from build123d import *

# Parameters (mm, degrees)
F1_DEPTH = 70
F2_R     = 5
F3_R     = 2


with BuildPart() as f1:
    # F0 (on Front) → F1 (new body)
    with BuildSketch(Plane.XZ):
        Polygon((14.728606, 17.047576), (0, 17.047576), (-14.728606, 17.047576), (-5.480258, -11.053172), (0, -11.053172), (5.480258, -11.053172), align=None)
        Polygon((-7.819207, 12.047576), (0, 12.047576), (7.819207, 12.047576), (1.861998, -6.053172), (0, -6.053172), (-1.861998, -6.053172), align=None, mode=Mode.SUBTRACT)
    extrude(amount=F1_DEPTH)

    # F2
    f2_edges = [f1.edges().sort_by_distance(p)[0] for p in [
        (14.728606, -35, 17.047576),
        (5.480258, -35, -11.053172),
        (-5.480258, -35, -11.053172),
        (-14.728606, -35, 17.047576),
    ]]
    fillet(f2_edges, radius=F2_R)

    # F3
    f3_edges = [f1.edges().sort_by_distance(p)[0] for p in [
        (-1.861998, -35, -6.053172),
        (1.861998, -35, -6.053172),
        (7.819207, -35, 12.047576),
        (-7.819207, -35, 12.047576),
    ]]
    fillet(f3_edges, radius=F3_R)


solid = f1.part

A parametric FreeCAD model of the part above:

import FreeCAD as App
import Part
import Sketcher
from FreeCAD import Vector


def edges_at(feature, points):
    """Names of the edges that pass closest to the given points."""
    edges = feature.Shape.Edges
    near = lambda p: min(range(len(edges)), key=lambda i: edges[i].distToShape(Part.Vertex(*p))[0])
    return sorted({f"Edge{near(p) + 1}" for p in points})

doc = App.newDocument("Part")
body = doc.addObject("PartDesign::Body", "Body")

sketch1 = body.newObject("Sketcher::SketchObject", "Sketch")
sketch1.AttachmentSupport = (doc.getObject("XZ_Plane"), [""])
sketch1.MapMode = "FlatFace"
sketch1.addGeometry(Part.LineSegment(Vector(14.7, 17, 0), Vector(-14.7, 17, 0)), False)
sketch1.addGeometry(Part.LineSegment(Vector(-14.7, 17, 0), Vector(-5.5, -11.1, 0)), False)
sketch1.addGeometry(Part.LineSegment(Vector(-5.5, -11.1, 0), Vector(5.5, -11.1, 0)), False)
sketch1.addGeometry(Part.LineSegment(Vector(5.5, -11.1, 0), Vector(14.7, 17, 0)), False)
sketch1.addGeometry(Part.LineSegment(Vector(-1.9, -6.1, 0), Vector(-7.8, 12, 0)), False)
sketch1.addGeometry(Part.LineSegment(Vector(-7.8, 12, 0), Vector(7.8, 12, 0)), False)
sketch1.addGeometry(Part.LineSegment(Vector(7.8, 12, 0), Vector(1.9, -6.1, 0)), False)
sketch1.addGeometry(Part.LineSegment(Vector(1.9, -6.1, 0), Vector(-1.9, -6.1, 0)), False)
sketch1.addConstraint(Sketcher.Constraint("Coincident", 0, 2, 1, 1))
sketch1.addConstraint(Sketcher.Constraint("Coincident", 1, 2, 2, 1))
sketch1.addConstraint(Sketcher.Constraint("Coincident", 2, 2, 3, 1))
sketch1.addConstraint(Sketcher.Constraint("Coincident", 3, 2, 0, 1))
sketch1.addConstraint(Sketcher.Constraint("Coincident", 4, 2, 5, 1))
sketch1.addConstraint(Sketcher.Constraint("Coincident", 5, 2, 6, 1))
sketch1.addConstraint(Sketcher.Constraint("Coincident", 6, 2, 7, 1))
sketch1.addConstraint(Sketcher.Constraint("Coincident", 7, 2, 4, 1))
sketch1.addConstraint(Sketcher.Constraint("Horizontal", 0))
sketch1.addConstraint(Sketcher.Constraint("Horizontal", 2))
sketch1.addConstraint(Sketcher.Constraint("Horizontal", 5))
sketch1.addConstraint(Sketcher.Constraint("Horizontal", 7))
sketch1.addConstraint(Sketcher.Constraint("Parallel", 1, 4))
sketch1.addConstraint(Sketcher.Constraint("Parallel", 3, 6))
sketch1.addConstraint(Sketcher.Constraint("Equal", 1, 3))
sketch1.addConstraint(Sketcher.Constraint("DistanceY", 4, 2, 0, 2, 5.0))
sketch1.addConstraint(Sketcher.Constraint("DistanceY", 2, 2, 6, 2, 5.0))
sketch1.addConstraint(Sketcher.Constraint("DistanceX", 0, 2, 0, 1, 29.457212))
sketch1.addConstraint(Sketcher.Constraint("DistanceX", 0, 2, 4, 2, 6.909399))
sketch1.addConstraint(Sketcher.Constraint("DistanceX", 5, 2, 3, 2, 6.909399))
sketch1.addConstraint(Sketcher.Constraint("Distance", 1, 29.583509))
sketch1.addConstraint(Sketcher.Constraint("Distance", 4, 19.05585))
sketch1.addConstraint(Sketcher.Constraint("DistanceX", 0, 2, -1, 1, 14.728606))
sketch1.addConstraint(Sketcher.Constraint("DistanceY", -1, 1, 0, 2, 17.047576))
pad1 = body.newObject("PartDesign::Pad", "Pad")
pad1.Profile = sketch1
pad1.Length = 70
doc.recompute()

fillet = body.newObject("PartDesign::Fillet", "Fillet")
fillet.Base = (pad1, edges_at(pad1, [
    (14.729, -35, 17.048),
    (5.48, -35, -11.053),
    (-5.48, -35, -11.053),
    (-14.729, -35, 17.048),
]))
fillet.Radius = 5
doc.recompute()

fillet2 = body.newObject("PartDesign::Fillet", "Fillet001")
fillet2.Base = (fillet, edges_at(fillet, [
    (-1.862, -35, -6.053),
    (1.862, -35, -6.053),
    (7.819, -35, 12.048),
    (-7.819, -35, 12.048),
]))
fillet2.Radius = 2

doc.recompute()
